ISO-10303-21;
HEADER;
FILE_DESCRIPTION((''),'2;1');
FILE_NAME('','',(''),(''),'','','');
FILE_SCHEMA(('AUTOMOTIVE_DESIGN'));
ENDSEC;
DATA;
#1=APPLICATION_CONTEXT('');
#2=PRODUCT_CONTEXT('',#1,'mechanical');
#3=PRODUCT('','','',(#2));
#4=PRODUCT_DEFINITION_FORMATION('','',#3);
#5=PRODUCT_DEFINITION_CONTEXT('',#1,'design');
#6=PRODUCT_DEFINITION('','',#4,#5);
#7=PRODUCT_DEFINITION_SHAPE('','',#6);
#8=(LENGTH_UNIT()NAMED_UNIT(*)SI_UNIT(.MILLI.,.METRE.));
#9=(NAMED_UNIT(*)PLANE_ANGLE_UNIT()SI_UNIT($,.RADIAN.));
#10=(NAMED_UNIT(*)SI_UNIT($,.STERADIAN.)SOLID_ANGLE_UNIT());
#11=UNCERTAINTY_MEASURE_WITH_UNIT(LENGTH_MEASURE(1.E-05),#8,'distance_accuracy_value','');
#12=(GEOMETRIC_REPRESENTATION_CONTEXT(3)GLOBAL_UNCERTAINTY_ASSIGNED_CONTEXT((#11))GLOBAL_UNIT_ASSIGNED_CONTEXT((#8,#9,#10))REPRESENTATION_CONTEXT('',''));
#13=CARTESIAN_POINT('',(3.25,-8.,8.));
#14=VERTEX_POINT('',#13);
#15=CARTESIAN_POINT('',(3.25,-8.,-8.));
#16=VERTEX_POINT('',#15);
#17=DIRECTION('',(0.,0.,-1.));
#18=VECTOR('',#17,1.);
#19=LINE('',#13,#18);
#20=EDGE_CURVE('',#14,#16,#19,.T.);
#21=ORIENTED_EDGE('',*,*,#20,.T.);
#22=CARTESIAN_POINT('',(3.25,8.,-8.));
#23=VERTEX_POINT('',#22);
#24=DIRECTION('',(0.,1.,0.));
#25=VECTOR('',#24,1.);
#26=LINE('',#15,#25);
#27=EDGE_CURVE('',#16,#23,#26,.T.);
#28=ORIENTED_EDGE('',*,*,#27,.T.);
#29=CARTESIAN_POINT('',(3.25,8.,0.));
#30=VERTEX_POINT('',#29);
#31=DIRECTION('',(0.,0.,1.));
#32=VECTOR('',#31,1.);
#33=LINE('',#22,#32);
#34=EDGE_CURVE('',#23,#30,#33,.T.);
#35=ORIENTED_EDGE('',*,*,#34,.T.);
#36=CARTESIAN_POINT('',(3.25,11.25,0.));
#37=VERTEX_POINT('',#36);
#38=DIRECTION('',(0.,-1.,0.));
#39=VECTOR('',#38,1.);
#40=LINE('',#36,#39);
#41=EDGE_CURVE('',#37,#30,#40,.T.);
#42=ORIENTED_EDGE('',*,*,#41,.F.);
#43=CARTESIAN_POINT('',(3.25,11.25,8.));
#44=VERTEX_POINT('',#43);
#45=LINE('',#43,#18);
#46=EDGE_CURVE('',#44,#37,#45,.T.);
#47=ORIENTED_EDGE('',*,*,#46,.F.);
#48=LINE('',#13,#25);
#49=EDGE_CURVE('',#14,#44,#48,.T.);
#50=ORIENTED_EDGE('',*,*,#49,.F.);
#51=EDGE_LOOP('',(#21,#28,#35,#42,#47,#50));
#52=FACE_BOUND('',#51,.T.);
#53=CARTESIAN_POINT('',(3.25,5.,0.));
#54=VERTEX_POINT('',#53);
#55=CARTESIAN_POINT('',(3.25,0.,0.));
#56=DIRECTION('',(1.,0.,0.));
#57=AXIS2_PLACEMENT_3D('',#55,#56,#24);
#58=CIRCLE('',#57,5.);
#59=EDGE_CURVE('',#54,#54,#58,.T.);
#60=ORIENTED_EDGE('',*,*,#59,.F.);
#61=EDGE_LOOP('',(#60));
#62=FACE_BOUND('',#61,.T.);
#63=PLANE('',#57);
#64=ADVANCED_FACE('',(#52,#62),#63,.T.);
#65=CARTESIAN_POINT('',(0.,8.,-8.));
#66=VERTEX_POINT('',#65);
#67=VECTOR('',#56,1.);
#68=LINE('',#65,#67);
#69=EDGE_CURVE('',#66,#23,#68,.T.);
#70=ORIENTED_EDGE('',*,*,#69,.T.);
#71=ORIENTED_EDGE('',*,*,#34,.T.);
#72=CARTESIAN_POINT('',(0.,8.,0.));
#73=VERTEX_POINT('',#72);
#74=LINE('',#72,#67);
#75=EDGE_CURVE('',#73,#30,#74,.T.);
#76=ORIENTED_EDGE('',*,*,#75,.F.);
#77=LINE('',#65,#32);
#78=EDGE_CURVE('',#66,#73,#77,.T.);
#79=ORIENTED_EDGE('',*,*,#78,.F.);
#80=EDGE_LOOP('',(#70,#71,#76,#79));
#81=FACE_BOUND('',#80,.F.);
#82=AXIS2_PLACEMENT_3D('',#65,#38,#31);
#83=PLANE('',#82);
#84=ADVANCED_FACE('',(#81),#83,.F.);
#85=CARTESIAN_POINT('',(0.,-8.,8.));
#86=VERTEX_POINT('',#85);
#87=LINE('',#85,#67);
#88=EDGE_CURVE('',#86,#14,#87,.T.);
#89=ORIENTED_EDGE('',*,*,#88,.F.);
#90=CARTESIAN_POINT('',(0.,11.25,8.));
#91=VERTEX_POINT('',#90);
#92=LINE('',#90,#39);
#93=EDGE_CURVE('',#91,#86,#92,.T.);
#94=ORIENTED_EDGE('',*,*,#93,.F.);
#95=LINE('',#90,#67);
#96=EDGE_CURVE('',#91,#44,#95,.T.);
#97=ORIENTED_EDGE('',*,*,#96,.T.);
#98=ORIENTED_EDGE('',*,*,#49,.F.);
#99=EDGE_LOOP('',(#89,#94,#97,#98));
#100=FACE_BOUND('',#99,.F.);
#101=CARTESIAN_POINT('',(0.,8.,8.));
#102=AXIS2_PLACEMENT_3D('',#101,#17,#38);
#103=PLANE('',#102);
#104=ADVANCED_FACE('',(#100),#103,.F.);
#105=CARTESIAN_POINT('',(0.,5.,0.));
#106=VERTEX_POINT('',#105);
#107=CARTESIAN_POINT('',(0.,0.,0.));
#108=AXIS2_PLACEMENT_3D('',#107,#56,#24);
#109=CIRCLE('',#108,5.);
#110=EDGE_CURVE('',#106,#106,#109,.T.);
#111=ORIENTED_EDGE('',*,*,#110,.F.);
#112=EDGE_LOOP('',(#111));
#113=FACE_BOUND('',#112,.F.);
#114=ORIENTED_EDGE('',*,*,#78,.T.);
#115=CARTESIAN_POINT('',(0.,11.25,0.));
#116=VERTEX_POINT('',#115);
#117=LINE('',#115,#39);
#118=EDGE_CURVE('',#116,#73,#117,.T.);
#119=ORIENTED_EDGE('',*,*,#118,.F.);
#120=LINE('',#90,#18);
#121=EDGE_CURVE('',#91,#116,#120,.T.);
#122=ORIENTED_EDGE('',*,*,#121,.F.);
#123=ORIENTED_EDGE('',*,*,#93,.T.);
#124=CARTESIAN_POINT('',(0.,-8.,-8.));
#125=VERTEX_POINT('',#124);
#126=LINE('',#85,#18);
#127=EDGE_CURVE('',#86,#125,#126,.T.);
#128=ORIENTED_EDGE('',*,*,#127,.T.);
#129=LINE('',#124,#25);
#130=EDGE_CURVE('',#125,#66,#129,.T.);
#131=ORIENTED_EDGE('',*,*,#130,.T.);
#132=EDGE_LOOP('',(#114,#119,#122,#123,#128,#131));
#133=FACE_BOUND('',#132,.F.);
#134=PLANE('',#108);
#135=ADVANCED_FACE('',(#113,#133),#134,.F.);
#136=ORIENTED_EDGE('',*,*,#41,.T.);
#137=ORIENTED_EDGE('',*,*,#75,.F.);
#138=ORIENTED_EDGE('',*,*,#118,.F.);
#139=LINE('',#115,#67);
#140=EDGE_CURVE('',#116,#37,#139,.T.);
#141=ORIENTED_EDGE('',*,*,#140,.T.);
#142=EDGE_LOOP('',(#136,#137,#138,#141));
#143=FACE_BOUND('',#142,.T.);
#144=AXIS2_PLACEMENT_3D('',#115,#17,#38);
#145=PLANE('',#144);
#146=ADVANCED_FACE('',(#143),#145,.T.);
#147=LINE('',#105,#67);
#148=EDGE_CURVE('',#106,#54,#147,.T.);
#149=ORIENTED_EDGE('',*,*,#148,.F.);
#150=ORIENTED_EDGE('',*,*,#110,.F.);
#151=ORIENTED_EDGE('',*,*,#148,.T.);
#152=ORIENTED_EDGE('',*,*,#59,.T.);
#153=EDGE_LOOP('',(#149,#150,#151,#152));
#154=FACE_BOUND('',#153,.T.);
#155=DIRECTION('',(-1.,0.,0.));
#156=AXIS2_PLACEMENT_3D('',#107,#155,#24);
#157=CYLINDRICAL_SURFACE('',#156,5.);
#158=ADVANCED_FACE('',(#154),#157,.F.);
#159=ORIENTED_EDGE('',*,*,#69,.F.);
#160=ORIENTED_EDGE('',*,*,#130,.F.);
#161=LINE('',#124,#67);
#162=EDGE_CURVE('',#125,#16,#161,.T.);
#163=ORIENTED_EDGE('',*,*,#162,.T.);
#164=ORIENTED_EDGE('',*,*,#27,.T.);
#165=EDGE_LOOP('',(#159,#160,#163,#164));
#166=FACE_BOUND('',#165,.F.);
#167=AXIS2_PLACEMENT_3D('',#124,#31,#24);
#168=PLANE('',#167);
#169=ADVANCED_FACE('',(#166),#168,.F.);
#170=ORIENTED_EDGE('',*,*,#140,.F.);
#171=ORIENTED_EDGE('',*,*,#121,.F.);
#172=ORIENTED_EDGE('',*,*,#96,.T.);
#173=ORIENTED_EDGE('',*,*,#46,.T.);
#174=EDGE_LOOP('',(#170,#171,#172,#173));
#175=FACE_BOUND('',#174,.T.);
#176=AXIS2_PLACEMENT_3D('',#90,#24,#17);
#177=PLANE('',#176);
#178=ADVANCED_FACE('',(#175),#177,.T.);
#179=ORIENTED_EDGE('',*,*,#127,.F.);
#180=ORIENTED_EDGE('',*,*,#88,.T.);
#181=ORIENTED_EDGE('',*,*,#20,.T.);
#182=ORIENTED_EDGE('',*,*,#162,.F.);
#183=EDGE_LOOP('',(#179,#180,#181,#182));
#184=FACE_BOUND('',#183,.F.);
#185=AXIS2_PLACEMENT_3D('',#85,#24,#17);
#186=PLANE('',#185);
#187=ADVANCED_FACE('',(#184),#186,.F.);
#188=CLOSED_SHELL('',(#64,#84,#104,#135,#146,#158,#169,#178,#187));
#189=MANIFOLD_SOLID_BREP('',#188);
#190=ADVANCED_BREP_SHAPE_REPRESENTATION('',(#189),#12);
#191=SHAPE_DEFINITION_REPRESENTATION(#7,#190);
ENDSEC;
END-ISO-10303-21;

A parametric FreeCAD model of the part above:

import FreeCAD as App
import Part
import Sketcher

V = App.Vector
Q = App.Units.Quantity

doc = App.newDocument("Part")
body = doc.addObject("PartDesign::Body", "Body")

sketch1 = body.newObject("Sketcher::SketchObject", "Sketch")
sketch1.AttachmentSupport = (doc.getObject("YZ_Plane"), [""])
sketch1.MapMode = "FlatFace"
sketch1.addGeometry(Part.LineSegment(V(-8, 8, 0), V(-8, -8, 0)), False)
sketch1.addGeometry(Part.LineSegment(V(-8, -8, 0), V(8, -8, 0)), False)
sketch1.addGeometry(Part.LineSegment(V(8, -8, 0), V(8, 0, 0)), False)
sketch1.addGeometry(Part.LineSegment(V(8, 0, 0), V(11.25, 0, 0)), False)
sketch1.addGeometry(Part.LineSegment(V(11.25, 0, 0), V(11.25, 8, 0)), False)
sketch1.addGeometry(Part.LineSegment(V(11.25, 8, 0), V(-8, 8, 0)), False)
sketch1.addGeometry(Part.Circle(V(0, 0, 0), V(0, 0, 1), 5), False)
sketch1.addConstraint(Sketcher.Constraint("Coincident", 0, 2, 1, 1))
sketch1.addConstraint(Sketcher.Constraint("Coincident", 1, 2, 2, 1))
sketch1.addConstraint(Sketcher.Constraint("Coincident", 2, 2, 3, 1))
sketch1.addConstraint(Sketcher.Constraint("Coincident", 3, 2, 4, 1))
sketch1.addConstraint(Sketcher.Constraint("Coincident", 4, 2, 5, 1))
sketch1.addConstraint(Sketcher.Constraint("Coincident", 5, 2, 0, 1))
sketch1.addConstraint(Sketcher.Constraint("Vertical", 0))
sketch1.addConstraint(Sketcher.Constraint("Horizontal", 1))
sketch1.addConstraint(Sketcher.Constraint("Vertical", 2))
sketch1.addConstraint(Sketcher.Constraint("Horizontal", 3))
sketch1.addConstraint(Sketcher.Constraint("Vertical", 4))
sketch1.addConstraint(Sketcher.Constraint("Horizontal", 5))
sketch1.addConstraint(Sketcher.Constraint("Coincident", 6, 3, -1, 1))
sketch1.addConstraint(Sketcher.Constraint("Symmetric", 1, 2, 5, 2, -1, 1))
sketch1.addConstraint(Sketcher.Constraint("PointOnObject", 2, 2, -1))
sketch1.addConstraint(Sketcher.Constraint("Equal", 1, 0))
sketch1.addConstraint(Sketcher.Constraint("Diameter", 6, Q("10 mm")))
sketch1.addConstraint(Sketcher.Constraint("DistanceX", 1, 1, 1, 2, Q("16 mm")))
sketch1.addConstraint(Sketcher.Constraint("DistanceX", 3, 1, 3, 2, Q("3.25 mm")))
pad1 = body.newObject("PartDesign::Pad", "Pad")
pad1.Profile = sketch1
pad1.Length = 3.25

doc.recompute()
